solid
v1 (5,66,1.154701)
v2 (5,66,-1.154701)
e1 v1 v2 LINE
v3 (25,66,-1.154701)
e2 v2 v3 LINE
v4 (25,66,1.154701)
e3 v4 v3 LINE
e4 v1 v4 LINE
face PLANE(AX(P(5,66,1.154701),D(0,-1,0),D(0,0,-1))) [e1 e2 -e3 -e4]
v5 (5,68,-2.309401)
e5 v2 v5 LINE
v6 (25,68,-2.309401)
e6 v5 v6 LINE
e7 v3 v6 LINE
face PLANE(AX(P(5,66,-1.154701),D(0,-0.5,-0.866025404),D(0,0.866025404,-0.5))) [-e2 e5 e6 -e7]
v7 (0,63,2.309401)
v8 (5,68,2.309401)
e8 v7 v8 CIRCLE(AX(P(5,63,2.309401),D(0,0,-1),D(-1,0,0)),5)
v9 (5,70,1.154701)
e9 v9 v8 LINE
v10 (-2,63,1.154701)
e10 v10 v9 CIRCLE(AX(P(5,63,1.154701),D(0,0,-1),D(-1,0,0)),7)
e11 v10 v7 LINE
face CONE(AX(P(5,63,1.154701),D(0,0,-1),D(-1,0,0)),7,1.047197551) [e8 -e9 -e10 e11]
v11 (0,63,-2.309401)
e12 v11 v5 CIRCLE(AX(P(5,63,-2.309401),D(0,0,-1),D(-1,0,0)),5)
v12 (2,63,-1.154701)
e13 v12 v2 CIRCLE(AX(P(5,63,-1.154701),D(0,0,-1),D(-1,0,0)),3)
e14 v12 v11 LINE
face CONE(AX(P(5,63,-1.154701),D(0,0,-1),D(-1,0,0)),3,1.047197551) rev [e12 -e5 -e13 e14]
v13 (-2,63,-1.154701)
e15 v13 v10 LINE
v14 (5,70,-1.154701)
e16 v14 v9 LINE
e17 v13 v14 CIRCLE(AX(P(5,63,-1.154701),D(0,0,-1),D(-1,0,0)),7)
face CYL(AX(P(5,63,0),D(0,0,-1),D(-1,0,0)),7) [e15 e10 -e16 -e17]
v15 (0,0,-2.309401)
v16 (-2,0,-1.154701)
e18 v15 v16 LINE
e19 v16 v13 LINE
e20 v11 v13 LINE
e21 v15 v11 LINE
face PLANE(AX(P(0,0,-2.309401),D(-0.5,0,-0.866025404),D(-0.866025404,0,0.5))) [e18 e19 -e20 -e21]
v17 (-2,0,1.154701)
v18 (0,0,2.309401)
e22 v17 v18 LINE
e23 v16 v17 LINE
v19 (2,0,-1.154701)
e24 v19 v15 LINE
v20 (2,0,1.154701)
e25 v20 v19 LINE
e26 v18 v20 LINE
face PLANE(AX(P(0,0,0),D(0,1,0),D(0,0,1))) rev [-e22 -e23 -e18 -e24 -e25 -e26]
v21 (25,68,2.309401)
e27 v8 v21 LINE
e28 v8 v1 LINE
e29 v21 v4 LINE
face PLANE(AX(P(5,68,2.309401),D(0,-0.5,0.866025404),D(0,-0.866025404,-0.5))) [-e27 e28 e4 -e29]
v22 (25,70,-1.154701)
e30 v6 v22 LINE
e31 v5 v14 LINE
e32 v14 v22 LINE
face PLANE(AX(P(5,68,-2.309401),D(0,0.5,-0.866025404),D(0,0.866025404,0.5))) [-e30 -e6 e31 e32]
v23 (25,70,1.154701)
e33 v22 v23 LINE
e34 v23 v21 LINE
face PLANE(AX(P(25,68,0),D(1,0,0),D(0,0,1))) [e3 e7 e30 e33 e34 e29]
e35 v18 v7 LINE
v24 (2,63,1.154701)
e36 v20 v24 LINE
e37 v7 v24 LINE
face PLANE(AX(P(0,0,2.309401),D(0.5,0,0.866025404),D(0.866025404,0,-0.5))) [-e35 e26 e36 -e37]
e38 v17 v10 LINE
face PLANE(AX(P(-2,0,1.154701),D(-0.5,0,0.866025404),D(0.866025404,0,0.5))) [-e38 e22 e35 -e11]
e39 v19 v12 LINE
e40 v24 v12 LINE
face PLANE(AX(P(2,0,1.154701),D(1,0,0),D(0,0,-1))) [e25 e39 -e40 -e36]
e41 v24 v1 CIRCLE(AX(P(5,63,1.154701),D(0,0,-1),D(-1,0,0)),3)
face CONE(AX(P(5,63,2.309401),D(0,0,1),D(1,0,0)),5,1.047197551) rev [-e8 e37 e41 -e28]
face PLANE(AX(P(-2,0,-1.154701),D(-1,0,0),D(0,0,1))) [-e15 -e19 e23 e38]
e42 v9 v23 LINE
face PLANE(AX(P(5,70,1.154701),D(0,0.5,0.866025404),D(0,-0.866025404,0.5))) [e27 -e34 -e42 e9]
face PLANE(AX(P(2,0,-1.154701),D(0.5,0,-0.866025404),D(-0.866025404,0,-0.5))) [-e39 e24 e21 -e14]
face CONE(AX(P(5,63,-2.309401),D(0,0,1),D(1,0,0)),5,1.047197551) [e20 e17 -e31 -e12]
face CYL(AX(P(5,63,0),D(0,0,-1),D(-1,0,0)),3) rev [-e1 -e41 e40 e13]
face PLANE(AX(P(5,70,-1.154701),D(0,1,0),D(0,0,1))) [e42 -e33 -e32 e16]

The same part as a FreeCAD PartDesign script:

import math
import FreeCAD as App
import Part
import Sketcher
from FreeCAD import Vector
Q = App.Units.Quantity

doc = App.newDocument("Part")
body = doc.addObject("PartDesign::Body", "Body")

# Sketch on XZ plane
sketch1 = body.newObject("Sketcher::SketchObject", "Sketch")
sketch1.AttachmentSupport = (doc.getObject("XZ_Plane"), [""])
sketch1.MapMode = "FlatFace"
sketch1.addGeometry([
    Part.LineSegment(Vector(2, 1.2, 0), Vector(2, -1.2, 0)),  # 0
    Part.LineSegment(Vector(2, -1.2, 0), Vector(0, -2.3, 0)),  # 1
    Part.LineSegment(Vector(0, -2.3, 0), Vector(-2, -1.2, 0)),  # 2
    Part.LineSegment(Vector(-2, -1.2, 0), Vector(-2, 1.2, 0)),  # 3
    Part.LineSegment(Vector(-2, 1.2, 0), Vector(0, 2.3, 0)),  # 4
    Part.LineSegment(Vector(0, 2.3, 0), Vector(2, 1.2, 0)),  # 5
], False)
sketch1.addConstraint([
    Sketcher.Constraint("Coincident", 0, 2, 1, 1),
    Sketcher.Constraint("Coincident", 1, 2, 2, 1),
    Sketcher.Constraint("Coincident", 2, 2, 3, 1),
    Sketcher.Constraint("Coincident", 3, 2, 4, 1),
    Sketcher.Constraint("Coincident", 4, 2, 5, 1),
    Sketcher.Constraint("Coincident", 5, 2, 0, 1),
    Sketcher.Constraint("Vertical", 0),
    Sketcher.Constraint("Vertical", 3),
    Sketcher.Constraint("Symmetric", 0, 2, 3, 2, -1, 1),
    Sketcher.Constraint("Symmetric", 1, 2, 4, 2, -1, 1),
    Sketcher.Constraint("PointOnObject", 1, 2, -2),
    Sketcher.Constraint("Parallel", 2, 5),
    Sketcher.Constraint("Horizontal", 0, 2, 2, 2),
    Sketcher.Constraint("Angle", 1, Q("-150 deg")),
    Sketcher.Constraint("DistanceX", -1, 1, 0, 2, 2.0),
    Sketcher.Constraint("DistanceY", 0, 2, 0, 1, 2.309401),
])

# Sketch on XY plane
sketch2 = body.newObject("Sketcher::SketchObject", "Sketch001")
sketch2.AttachmentSupport = (doc.getObject("XY_Plane"), [""])
sketch2.MapMode = "FlatFace"
sketch2.addGeometry([
    Part.LineSegment(Vector(0, 0, 0), Vector(0, 63, 0)),
    Part.ArcOfCircle(Part.Circle(Vector(5, 63, 0), Vector(0, 0, 1), 5), math.radians(90), math.radians(180)),
    Part.LineSegment(Vector(5, 68, 0), Vector(25, 68, 0)),
], False)
sketch2.addConstraint([
    Sketcher.Constraint("Tangent", 0, 2, 1, 2),
    Sketcher.Constraint("Tangent", 1, 1, 2, 1),
    Sketcher.Constraint("Vertical", 0),
    Sketcher.Constraint("Horizontal", 2),
    Sketcher.Constraint("Coincident", 0, 1, -1, 1),
    Sketcher.Constraint("Radius", 1, 5.0),
    Sketcher.Constraint("DistanceX", 2, 1, 2, 2, 20.0),
    Sketcher.Constraint("DistanceY", 0, 1, 0, 2, 63.0),
])
doc.recompute()

additivepipe = body.newObject("PartDesign::AdditivePipe", "AdditivePipe")
additivepipe.Profile = sketch1
additivepipe.Spine = (sketch2, ["Edge1", "Edge2", "Edge3"])

doc.recompute()
